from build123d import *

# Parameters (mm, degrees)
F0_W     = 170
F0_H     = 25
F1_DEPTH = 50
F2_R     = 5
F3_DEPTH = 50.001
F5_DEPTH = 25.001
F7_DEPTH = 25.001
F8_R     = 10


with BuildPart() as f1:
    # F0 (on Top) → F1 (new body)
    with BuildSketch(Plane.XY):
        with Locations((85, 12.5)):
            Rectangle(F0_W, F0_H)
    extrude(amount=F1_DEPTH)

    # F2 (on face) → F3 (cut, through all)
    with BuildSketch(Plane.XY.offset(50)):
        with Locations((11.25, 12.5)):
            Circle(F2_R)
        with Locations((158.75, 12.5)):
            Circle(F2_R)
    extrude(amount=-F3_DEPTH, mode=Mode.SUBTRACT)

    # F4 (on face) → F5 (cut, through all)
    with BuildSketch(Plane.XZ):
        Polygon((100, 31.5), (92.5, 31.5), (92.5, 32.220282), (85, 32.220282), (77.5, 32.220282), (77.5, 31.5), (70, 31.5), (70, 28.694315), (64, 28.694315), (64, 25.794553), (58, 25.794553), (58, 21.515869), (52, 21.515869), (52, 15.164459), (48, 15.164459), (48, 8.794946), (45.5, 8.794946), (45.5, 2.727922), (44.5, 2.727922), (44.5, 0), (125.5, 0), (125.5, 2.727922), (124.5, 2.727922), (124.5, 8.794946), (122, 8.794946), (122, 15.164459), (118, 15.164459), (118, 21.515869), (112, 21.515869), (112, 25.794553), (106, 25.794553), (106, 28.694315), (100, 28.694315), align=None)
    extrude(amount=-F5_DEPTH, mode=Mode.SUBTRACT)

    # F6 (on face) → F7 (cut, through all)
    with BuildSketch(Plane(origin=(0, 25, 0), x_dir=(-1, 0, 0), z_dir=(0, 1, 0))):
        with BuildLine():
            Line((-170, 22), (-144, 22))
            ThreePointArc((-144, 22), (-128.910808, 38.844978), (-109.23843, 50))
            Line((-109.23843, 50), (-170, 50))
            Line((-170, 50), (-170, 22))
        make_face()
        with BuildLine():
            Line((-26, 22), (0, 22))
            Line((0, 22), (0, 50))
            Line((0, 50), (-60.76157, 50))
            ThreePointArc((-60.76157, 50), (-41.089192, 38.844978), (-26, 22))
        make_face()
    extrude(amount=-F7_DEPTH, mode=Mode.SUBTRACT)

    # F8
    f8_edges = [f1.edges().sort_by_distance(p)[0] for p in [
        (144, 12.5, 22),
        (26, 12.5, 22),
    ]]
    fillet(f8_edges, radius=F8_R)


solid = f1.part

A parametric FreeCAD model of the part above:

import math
import FreeCAD as App
import Part
import Sketcher
Q = App.Units.Quantity


def edges_at(feature, points):
    """Names of the edges that pass closest to the given points."""
    edges = feature.Shape.Edges
    near = lambda p: min(range(len(edges)), key=lambda i: edges[i].distToShape(Part.Vertex(*p))[0])
    return sorted({f"Edge{near(p) + 1}" for p in points})


def add_polygon(sketch, points):
    """Adds a closed chain of lines whose ends are joined by coincident constraints."""
    first, n = sketch.GeometryCount, len(points)
    for a, b in zip(points, points[1:] + points[:1]):
        sketch.addGeometry(Part.LineSegment(App.Vector(*a, 0), App.Vector(*b, 0)), False)
    for i in range(n):
        sketch.addConstraint(Sketcher.Constraint("Coincident", first + i, 2, first + (i + 1) % n, 1))

doc = App.newDocument("Part")
params = doc.addObject("Spreadsheet::Sheet", "Params")
for row, (alias, value) in enumerate([
    ("sketch1_width", "170 mm"),
    ("sketch1_height", "25 mm"),
    ("pad1_length", "50 mm"),
    ("sketch2_diameter", "10 mm"),
    ("sketch3_width", "15 mm"),
    ("sketch3_width2", "6 mm"),
    ("sketch3_width3", "4 mm"),
    ("sketch3_width4", "1 mm"),
    ("sketch3_width5", "81 mm"),
    ("sketch4_width", "26 mm"),
    ("sketch4_height", "28 mm"),
    ("fillet_radius", "10 mm"),
], start=1):
    params.set(f"A{row}", alias)
    params.set(f"B{row}", "=" + value)
    params.setAlias(f"B{row}", alias)

body = doc.addObject("PartDesign::Body", "Body")

# Sketch on XY plane
sketch1 = doc.addObject("Sketcher::SketchObject", "Sketch")
body.addObject(sketch1)
sketch1.AttachmentSupport = (doc.XY_Plane, [""])
sketch1.MapMode = "FlatFace"
add_polygon(sketch1, [(0, 25), (0, 0), (170, 0), (170, 25)])  # lines 0-3
sketch1.addConstraint(Sketcher.Constraint("Vertical", 0))
sketch1.addConstraint(Sketcher.Constraint("Horizontal", 1))
sketch1.addConstraint(Sketcher.Constraint("Vertical", 2))
sketch1.addConstraint(Sketcher.Constraint("Horizontal", 3))
sketch1.addConstraint(Sketcher.Constraint("Coincident", 0, 2, -1, 1))
sketch1.addConstraint(Sketcher.Constraint("DistanceX", 1, 1, 1, 2, Q("170 mm")))
sketch1.addConstraint(Sketcher.Constraint("DistanceY", 0, 2, 0, 1, Q("25 mm")))
sketch1.setExpression("Constraints[9]", "Params.sketch1_width")
sketch1.setExpression("Constraints[10]", "Params.sketch1_height")
pad1 = doc.addObject("PartDesign::Pad", "Pad")
body.addObject(pad1)
pad1.Profile = sketch1
pad1.setExpression("Length", "Params.pad1_length")

# Sketch on XY plane
sketch2 = doc.addObject("Sketcher::SketchObject", "Sketch001")
body.addObject(sketch2)
sketch2.AttachmentSupport = (doc.XY_Plane, [""])
sketch2.MapMode = "FlatFace"
sketch2.AttachmentOffset = App.Placement(App.Vector(0, 0, 50), App.Rotation())
sketch2.addGeometry(Part.Circle(App.Vector(11, 12, 0), App.Vector(0, 0, 1), 5), False)
sketch2.addGeometry(Part.Circle(App.Vector(159, 12, 0), App.Vector(0, 0, 1), 5), False)
sketch2.addConstraint(Sketcher.Constraint("Equal", 0, 1))
sketch2.addConstraint(Sketcher.Constraint("Horizontal", 0, 3, 1, 3))
sketch2.addConstraint(Sketcher.Constraint("Diameter", 0, Q("10 mm")))
sketch2.addConstraint(Sketcher.Constraint("DistanceY", -1, 1, 0, 3, Q("12.5 mm")))
sketch2.addConstraint(Sketcher.Constraint("DistanceX", 0, 3, 1, 3, Q("147.5 mm")))
sketch2.addConstraint(Sketcher.Constraint("DistanceX", -1, 1, 0, 3, Q("11.25 mm")))
sketch2.setExpression("Constraints[2]", "Params.sketch2_diameter")
pocket1 = doc.addObject("PartDesign::Pocket", "Pocket")
body.addObject(pocket1)
pocket1.Profile = sketch2
pocket1.Type = "ThroughAll"

# Sketch on XZ plane
sketch3 = doc.addObject("Sketcher::SketchObject", "Sketch002")
body.addObject(sketch3)
sketch3.AttachmentSupport = (doc.XZ_Plane, [""])
sketch3.MapMode = "FlatFace"
add_polygon(sketch3, [(100, 31.5), (92.5, 31.5), (92.5, 32.2), (77.5, 32.2), (77.5, 31.5), (70, 31.5), (70, 28.7), (64, 28.7), (64, 25.8), (58, 25.8), (58, 21.5), (52, 21.5), (52, 15.2), (48, 15.2), (48, 8.8), (45.5, 8.8), (45.5, 2.7), (44.5, 2.7), (44.5, 0), (125.5, 0), (125.5, 2.7), (124.5, 2.7), (124.5, 8.8), (122, 8.8), (122, 15.2), (118, 15.2), (118, 21.5), (112, 21.5), (112, 25.8), (106, 25.8), (106, 28.7), (100, 28.7)])  # lines 0-31
sketch3.addConstraint(Sketcher.Constraint("Horizontal", 0))
sketch3.addConstraint(Sketcher.Constraint("Vertical", 1))
sketch3.addConstraint(Sketcher.Constraint("Horizontal", 2))
sketch3.addConstraint(Sketcher.Constraint("Vertical", 3))
sketch3.addConstraint(Sketcher.Constraint("Horizontal", 4))
sketch3.addConstraint(Sketcher.Constraint("Vertical", 5))
sketch3.addConstraint(Sketcher.Constraint("Horizontal", 6))
sketch3.addConstraint(Sketcher.Constraint("Vertical", 7))
sketch3.addConstraint(Sketcher.Constraint("Horizontal", 8))
sketch3.addConstraint(Sketcher.Constraint("Vertical", 9))
sketch3.addConstraint(Sketcher.Constraint("Horizontal", 10))
sketch3.addConstraint(Sketcher.Constraint("Vertical", 11))
sketch3.addConstraint(Sketcher.Constraint("Horizontal", 12))
sketch3.addConstraint(Sketcher.Constraint("Vertical", 13))
sketch3.addConstraint(Sketcher.Constraint("Horizontal", 14))
sketch3.addConstraint(Sketcher.Constraint("Vertical", 15))
sketch3.addConstraint(Sketcher.Constraint("Horizontal", 16))
sketch3.addConstraint(Sketcher.Constraint("Vertical", 17))
sketch3.addConstraint(Sketcher.Constraint("Horizontal", 18))
sketch3.addConstraint(Sketcher.Constraint("Vertical", 19))
sketch3.addConstraint(Sketcher.Constraint("Horizontal", 20))
sketch3.addConstraint(Sketcher.Constraint("Vertical", 21))
sketch3.addConstraint(Sketcher.Constraint("Horizontal", 22))
sketch3.addConstraint(Sketcher.Constraint("Vertical", 23))
sketch3.addConstraint(Sketcher.Constraint("Horizontal", 24))
sketch3.addConstraint(Sketcher.Constraint("Vertical", 25))
sketch3.addConstraint(Sketcher.Constraint("Horizontal", 26))
sketch3.addConstraint(Sketcher.Constraint("Vertical", 27))
sketch3.addConstraint(Sketcher.Constraint("Horizontal", 28))
sketch3.addConstraint(Sketcher.Constraint("Vertical", 29))
sketch3.addConstraint(Sketcher.Constraint("Horizontal", 30))
sketch3.addConstraint(Sketcher.Constraint("Vertical", 31))
sketch3.addConstraint(Sketcher.Constraint("PointOnObject", 17, 2, -1))
sketch3.addConstraint(Sketcher.Constraint("Horizontal", 0, 2, 3, 2))
sketch3.addConstraint(Sketcher.Constraint("Horizontal", 16, 2, 19, 2))
sketch3.addConstraint(Sketcher.Constraint("Horizontal", 14, 2, 21, 2))
sketch3.addConstraint(Sketcher.Constraint("Horizontal", 12, 2, 23, 2))
sketch3.addConstraint(Sketcher.Constraint("Horizontal", 10, 2, 25, 2))
sketch3.addConstraint(Sketcher.Constraint("Horizontal", 8, 2, 27, 2))
sketch3.addConstraint(Sketcher.Constraint("Horizontal", 6, 2, 29, 2))
sketch3.addConstraint(Sketcher.Constraint("Equal", 0, 4))
sketch3.addConstraint(Sketcher.Constraint("Equal", 6, 8))
sketch3.addConstraint(Sketcher.Constraint("Equal", 8, 10))
sketch3.addConstraint(Sketcher.Constraint("Equal", 16, 20))
sketch3.addConstraint(Sketcher.Constraint("Equal", 14, 22))
sketch3.addConstraint(Sketcher.Constraint("Equal", 12, 24))
sketch3.addConstraint(Sketcher.Constraint("Equal", 10, 26))
sketch3.addConstraint(Sketcher.Constraint("Equal", 26, 28))
sketch3.addConstraint(Sketcher.Constraint("Equal", 28, 30))
sketch3.addConstraint(Sketcher.Constraint("DistanceX", 2, 2, 2, 1, Q("15 mm")))
sketch3.addConstraint(Sketcher.Constraint("DistanceX", 6, 2, 6, 1, Q("6 mm")))
sketch3.addConstraint(Sketcher.Constraint("DistanceX", 12, 2, 12, 1, Q("4 mm")))
sketch3.addConstraint(Sketcher.Constraint("DistanceX", 16, 2, 16, 1, Q("1 mm")))
sketch3.addConstraint(Sketcher.Constraint("DistanceX", 18, 1, 18, 2, Q("81 mm")))
sketch3.addConstraint(Sketcher.Constraint("DistanceX", 0, 2, 0, 1, Q("7.5 mm")))
sketch3.addConstraint(Sketcher.Constraint("DistanceX", -1, 1, 4, 2, Q("70 mm")))
sketch3.addConstraint(Sketcher.Constraint("DistanceY", -1, 1, 0, 2, Q("31.5 mm")))
sketch3.addConstraint(Sketcher.Constraint("DistanceY", 1, 1, 1, 2, Q("0.720282 mm")))
sketch3.addConstraint(Sketcher.Constraint("DistanceY", 7, 2, 7, 1, Q("2.899762 mm")))
sketch3.addConstraint(Sketcher.Constraint("DistanceY", 11, 2, 11, 1, Q("6.35141 mm")))
sketch3.addConstraint(Sketcher.Constraint("DistanceY", 17, 2, 17, 1, Q("2.727922 mm")))
sketch3.addConstraint(Sketcher.Constraint("DistanceY", 5, 2, 5, 1, Q("2.805685 mm")))
sketch3.addConstraint(Sketcher.Constraint("DistanceY", 9, 2, 9, 1, Q("4.278684 mm")))
sketch3.addConstraint(Sketcher.Constraint("DistanceY", 13, 2, 13, 1, Q("6.369513 mm")))
sketch3.setExpression("Constraints[81]", "Params.sketch3_width")
sketch3.setExpression("Constraints[82]", "Params.sketch3_width2")
sketch3.setExpression("Constraints[83]", "Params.sketch3_width3")
sketch3.setExpression("Constraints[84]", "Params.sketch3_width4")
sketch3.setExpression("Constraints[85]", "Params.sketch3_width5")
pocket2 = doc.addObject("PartDesign::Pocket", "Pocket001")
body.addObject(pocket2)
pocket2.Profile = sketch3
pocket2.Type = "ThroughAll"

# Sketch on XZ plane
sketch4 = doc.addObject("Sketcher::SketchObject", "Sketch003")
body.addObject(sketch4)
sketch4.AttachmentSupport = (doc.XZ_Plane, [""])
sketch4.MapMode = "FlatFace"
sketch4.AttachmentOffset = App.Placement(App.Vector(0, 0, -25), App.Rotation())
sketch4.addGeometry(Part.LineSegment(App.Vector(170, 22, 0), App.Vector(144, 22, 0)), False)
sketch4.addGeometry(Part.ArcOfCircle(Part.Circle(App.Vector(85, -16, 0), App.Vector(0, 0, 1), 70), math.radians(33), math.radians(70)), False)
sketch4.addGeometry(Part.LineSegment(App.Vector(109, 50, 0), App.Vector(170, 50, 0)), False)
sketch4.addGeometry(Part.LineSegment(App.Vector(170, 50, 0), App.Vector(170, 22, 0)), False)
sketch4.addGeometry(Part.LineSegment(App.Vector(26, 22, 0), App.Vector(0, 22, 0)), False)
sketch4.addGeometry(Part.LineSegment(App.Vector(0, 22, 0), App.Vector(0, 50, 0)), False)
sketch4.addGeometry(Part.LineSegment(App.Vector(0, 50, 0), App.Vector(61, 50, 0)), False)
sketch4.addGeometry(Part.ArcOfCircle(Part.Circle(App.Vector(85, -16, 0), App.Vector(0, 0, 1), 70), math.radians(110), math.radians(147)), False)
sketch4.addConstraint(Sketcher.Constraint("Coincident", 0, 2, 1, 1))
sketch4.addConstraint(Sketcher.Constraint("Coincident", 1, 2, 2, 1))
sketch4.addConstraint(Sketcher.Constraint("Coincident", 2, 2, 3, 1))
sketch4.addConstraint(Sketcher.Constraint("Coincident", 3, 2, 0, 1))
sketch4.addConstraint(Sketcher.Constraint("Coincident", 4, 2, 5, 1))
sketch4.addConstraint(Sketcher.Constraint("Coincident", 5, 2, 6, 1))
sketch4.addConstraint(Sketcher.Constraint("Coincident", 6, 2, 7, 1))
sketch4.addConstraint(Sketcher.Constraint("Coincident", 7, 2, 4, 1))
sketch4.addConstraint(Sketcher.Constraint("Horizontal", 0))
sketch4.addConstraint(Sketcher.Constraint("Horizontal", 2))
sketch4.addConstraint(Sketcher.Constraint("Vertical", 3))
sketch4.addConstraint(Sketcher.Constraint("Horizontal", 4))
sketch4.addConstraint(Sketcher.Constraint("Vertical", 5))
sketch4.addConstraint(Sketcher.Constraint("Horizontal", 6))
sketch4.addConstraint(Sketcher.Constraint("Coincident", 7, 3, 1, 3))
sketch4.addConstraint(Sketcher.Constraint("Equal", 1, 7))
sketch4.addConstraint(Sketcher.Constraint("PointOnObject", 4, 2, -2))
sketch4.addConstraint(Sketcher.Constraint("Horizontal", 3, 2, 4, 2))
sketch4.addConstraint(Sketcher.Constraint("Horizontal", 2, 2, 5, 2))
sketch4.addConstraint(Sketcher.Constraint("Equal", 0, 4))
sketch4.addConstraint(Sketcher.Constraint("DistanceX", 0, 2, 0, 1, Q("26 mm")))
sketch4.addConstraint(Sketcher.Constraint("DistanceY", 3, 2, 3, 1, Q("28 mm")))
sketch4.addConstraint(Sketcher.Constraint("DistanceX", -1, 1, 0, 2, Q("144 mm")))
sketch4.addConstraint(Sketcher.Constraint("DistanceY", -1, 1, 0, 2, Q("22 mm")))
sketch4.addConstraint(Sketcher.Constraint("Radius", 1, Q("69.999992 mm")))
sketch4.setExpression("Constraints[20]", "Params.sketch4_width")
sketch4.setExpression("Constraints[21]", "Params.sketch4_height")
pocket3 = doc.addObject("PartDesign::Pocket", "Pocket002")
body.addObject(pocket3)
pocket3.Profile = sketch4
pocket3.Type = "ThroughAll"
pocket3.Reversed = True
doc.recompute()

fillet = doc.addObject("PartDesign::Fillet", "Fillet")
body.addObject(fillet)
fillet.Base = (pocket3, edges_at(pocket3, [(144, 12.5, 22), (26, 12.5, 22)]))
fillet.setExpression("Radius", "Params.fillet_radius")

doc.recompute()
